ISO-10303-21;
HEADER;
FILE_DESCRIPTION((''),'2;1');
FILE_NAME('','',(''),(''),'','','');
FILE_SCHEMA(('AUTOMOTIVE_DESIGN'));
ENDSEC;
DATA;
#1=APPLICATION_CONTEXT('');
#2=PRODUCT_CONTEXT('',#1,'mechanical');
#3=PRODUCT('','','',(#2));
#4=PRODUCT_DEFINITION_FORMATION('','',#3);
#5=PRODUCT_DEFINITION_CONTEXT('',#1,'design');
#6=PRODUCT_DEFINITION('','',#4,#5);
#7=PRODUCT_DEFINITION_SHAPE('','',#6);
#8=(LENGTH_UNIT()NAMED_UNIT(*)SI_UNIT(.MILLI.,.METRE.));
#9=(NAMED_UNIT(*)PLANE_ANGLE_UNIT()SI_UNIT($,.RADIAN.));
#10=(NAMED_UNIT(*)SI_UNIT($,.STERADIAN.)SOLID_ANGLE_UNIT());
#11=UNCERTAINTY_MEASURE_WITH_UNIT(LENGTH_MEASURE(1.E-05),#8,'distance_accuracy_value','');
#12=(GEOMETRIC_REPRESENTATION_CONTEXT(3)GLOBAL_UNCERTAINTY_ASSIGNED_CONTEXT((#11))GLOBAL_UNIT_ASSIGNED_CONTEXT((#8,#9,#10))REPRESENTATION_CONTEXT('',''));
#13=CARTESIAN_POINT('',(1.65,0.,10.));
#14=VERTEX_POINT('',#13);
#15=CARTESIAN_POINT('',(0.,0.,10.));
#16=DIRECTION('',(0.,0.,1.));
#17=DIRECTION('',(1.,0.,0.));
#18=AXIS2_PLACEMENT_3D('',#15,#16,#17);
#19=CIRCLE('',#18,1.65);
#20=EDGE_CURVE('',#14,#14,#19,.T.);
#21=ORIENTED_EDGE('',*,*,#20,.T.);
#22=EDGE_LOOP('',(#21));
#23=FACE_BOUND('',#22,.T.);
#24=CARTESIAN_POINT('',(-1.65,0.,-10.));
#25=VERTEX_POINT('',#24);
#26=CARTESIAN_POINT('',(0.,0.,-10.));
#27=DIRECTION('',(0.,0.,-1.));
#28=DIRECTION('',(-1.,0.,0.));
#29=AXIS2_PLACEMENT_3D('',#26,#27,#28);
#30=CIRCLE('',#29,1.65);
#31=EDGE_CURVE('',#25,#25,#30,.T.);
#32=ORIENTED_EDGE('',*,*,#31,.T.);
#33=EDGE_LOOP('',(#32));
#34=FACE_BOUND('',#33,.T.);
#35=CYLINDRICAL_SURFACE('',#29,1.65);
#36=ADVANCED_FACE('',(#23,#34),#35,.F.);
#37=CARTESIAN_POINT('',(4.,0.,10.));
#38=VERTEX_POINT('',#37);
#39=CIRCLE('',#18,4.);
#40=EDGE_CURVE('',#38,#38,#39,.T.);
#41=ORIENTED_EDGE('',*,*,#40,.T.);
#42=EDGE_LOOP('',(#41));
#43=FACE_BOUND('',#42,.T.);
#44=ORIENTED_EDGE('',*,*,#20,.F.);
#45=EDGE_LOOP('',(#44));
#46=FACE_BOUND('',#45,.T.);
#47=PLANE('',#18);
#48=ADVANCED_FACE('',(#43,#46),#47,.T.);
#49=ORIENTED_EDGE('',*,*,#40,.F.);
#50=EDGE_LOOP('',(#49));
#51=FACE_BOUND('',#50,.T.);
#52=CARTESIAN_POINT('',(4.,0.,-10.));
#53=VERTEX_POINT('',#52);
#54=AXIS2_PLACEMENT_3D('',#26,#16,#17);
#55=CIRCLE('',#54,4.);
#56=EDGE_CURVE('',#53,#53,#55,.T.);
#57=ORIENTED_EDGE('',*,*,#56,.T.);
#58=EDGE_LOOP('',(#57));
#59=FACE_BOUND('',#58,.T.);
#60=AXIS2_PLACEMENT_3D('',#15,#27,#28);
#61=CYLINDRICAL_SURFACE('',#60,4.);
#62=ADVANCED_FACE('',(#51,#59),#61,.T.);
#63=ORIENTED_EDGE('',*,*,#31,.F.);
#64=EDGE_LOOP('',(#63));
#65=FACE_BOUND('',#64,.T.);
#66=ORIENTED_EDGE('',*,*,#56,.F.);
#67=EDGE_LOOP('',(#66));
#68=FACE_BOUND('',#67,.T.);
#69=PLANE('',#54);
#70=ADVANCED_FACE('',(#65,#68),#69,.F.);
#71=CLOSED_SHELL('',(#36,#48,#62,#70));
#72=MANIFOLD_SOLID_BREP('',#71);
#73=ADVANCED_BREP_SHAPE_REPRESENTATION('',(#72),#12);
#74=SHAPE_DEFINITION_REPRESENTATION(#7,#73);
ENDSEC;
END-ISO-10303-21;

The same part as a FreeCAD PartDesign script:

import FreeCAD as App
import Part
import Sketcher
Q = App.Units.Quantity

doc = App.newDocument("Part")
body = doc.addObject("PartDesign::Body", "Body")

sketch1 = body.newObject("Sketcher::SketchObject", "Sketch")
sketch1.AttachmentSupport = (doc.getObject("XY_Plane"), [""])
sketch1.MapMode = "FlatFace"
sketch1.addGeometry(Part.Circle(App.Vector(0, 0, 0), App.Vector(0, 0, 1), 4), False)
sketch1.addConstraint([
    Sketcher.Constraint("Coincident", 0, 3, -1, 1),
    Sketcher.Constraint("Diameter", 0, Q("8 mm")),
])
pad1 = body.newObject("PartDesign::Pad", "Pad")
pad1.Profile = sketch1
pad1.Length = 20
pad1.Midplane = True

sketch2 = body.newObject("Sketcher::SketchObject", "Sketch001")
sketch2.AttachmentSupport = (doc.getObject("XY_Plane"), [""])
sketch2.MapMode = "FlatFace"
sketch2.AttachmentOffset = App.Placement(App.Vector(0, 0, -10), App.Rotation())
sketch2.addGeometry(Part.Circle(App.Vector(0, 0, 0), App.Vector(0, 0, 1), 1.6), False)
sketch2.addConstraint([
    Sketcher.Constraint("Coincident", 0, 3, -1, 1),
    Sketcher.Constraint("Diameter", 0, Q("3.3 mm")),
])
doc.recompute()
hole = body.newObject("PartDesign::Hole", "Hole")
hole.Profile = sketch2
hole.ThreadType = "None"
hole.Diameter = 3.3
hole.DepthType = "Dimension"
hole.Depth = 11.5
hole.DrillPoint = "Angled"
hole.DrillPointAngle = 118
hole.Reversed = True

sketch3 = body.newObject("Sketcher::SketchObject", "Sketch002")
sketch3.AttachmentSupport = (doc.getObject("XY_Plane"), [""])
sketch3.MapMode = "FlatFace"
sketch3.addGeometry([
    Part.Circle(App.Vector(0, 0, 0), App.Vector(0, 0, 1), 1.6),
    Part.Circle(App.Vector(-15.7, 3.4, 0), App.Vector(0, 0, 1), 1.6),
    Part.Circle(App.Vector(-13.7, 2.6, 0), App.Vector(0, 0, 1), 1.6),
], False)
sketch3.addConstraint([
    Sketcher.Constraint("Coincident", 0, 3, -1, 1),
    Sketcher.Constraint("Equal", 0, 1),
    Sketcher.Constraint("Equal", 1, 2),
    Sketcher.Constraint("Diameter", 0, Q("3.3 mm")),
    Sketcher.Constraint("DistanceX", 2, 3, -1, 1, Q("13.662101 mm")),
    Sketcher.Constraint("DistanceY", -1, 1, 1, 3, Q("3.399491 mm")),
    Sketcher.Constraint("DistanceY", -1, 1, 2, 3, Q("2.590821 mm")),
    Sketcher.Constraint("DistanceX", 1, 3, -1, 1, Q("15.650267 mm")),
])
doc.recompute()
hole2 = body.newObject("PartDesign::Hole", "Hole001")
hole2.Profile = sketch3
hole2.ThreadType = "None"
hole2.Diameter = 3.3
hole2.DepthType = "Dimension"
hole2.Depth = 11.5
hole2.DrillPoint = "Angled"
hole2.DrillPointAngle = 118
hole2.Reversed = True

sketch4 = body.newObject("Sketcher::SketchObject", "Sketch003")
sketch4.AttachmentSupport = (doc.getObject("XY_Plane"), [""])
sketch4.MapMode = "FlatFace"
sketch4.AttachmentOffset = App.Placement(App.Vector(0, 0, 10), App.Rotation())
sketch4.addGeometry(Part.Circle(App.Vector(0, 0, 0), App.Vector(0, 0, 1), 1.6), False)
sketch4.addConstraint([
    Sketcher.Constraint("Coincident", 0, 3, -1, 1),
    Sketcher.Constraint("Diameter", 0, Q("3.3 mm")),
])
doc.recompute()
hole3 = body.newObject("PartDesign::Hole", "Hole002")
hole3.Profile = sketch4
hole3.ThreadType = "None"
hole3.Diameter = 3.3
hole3.DepthType = "Dimension"
hole3.Depth = 11.5
hole3.DrillPoint = "Angled"
hole3.DrillPointAngle = 118

doc.recompute()
